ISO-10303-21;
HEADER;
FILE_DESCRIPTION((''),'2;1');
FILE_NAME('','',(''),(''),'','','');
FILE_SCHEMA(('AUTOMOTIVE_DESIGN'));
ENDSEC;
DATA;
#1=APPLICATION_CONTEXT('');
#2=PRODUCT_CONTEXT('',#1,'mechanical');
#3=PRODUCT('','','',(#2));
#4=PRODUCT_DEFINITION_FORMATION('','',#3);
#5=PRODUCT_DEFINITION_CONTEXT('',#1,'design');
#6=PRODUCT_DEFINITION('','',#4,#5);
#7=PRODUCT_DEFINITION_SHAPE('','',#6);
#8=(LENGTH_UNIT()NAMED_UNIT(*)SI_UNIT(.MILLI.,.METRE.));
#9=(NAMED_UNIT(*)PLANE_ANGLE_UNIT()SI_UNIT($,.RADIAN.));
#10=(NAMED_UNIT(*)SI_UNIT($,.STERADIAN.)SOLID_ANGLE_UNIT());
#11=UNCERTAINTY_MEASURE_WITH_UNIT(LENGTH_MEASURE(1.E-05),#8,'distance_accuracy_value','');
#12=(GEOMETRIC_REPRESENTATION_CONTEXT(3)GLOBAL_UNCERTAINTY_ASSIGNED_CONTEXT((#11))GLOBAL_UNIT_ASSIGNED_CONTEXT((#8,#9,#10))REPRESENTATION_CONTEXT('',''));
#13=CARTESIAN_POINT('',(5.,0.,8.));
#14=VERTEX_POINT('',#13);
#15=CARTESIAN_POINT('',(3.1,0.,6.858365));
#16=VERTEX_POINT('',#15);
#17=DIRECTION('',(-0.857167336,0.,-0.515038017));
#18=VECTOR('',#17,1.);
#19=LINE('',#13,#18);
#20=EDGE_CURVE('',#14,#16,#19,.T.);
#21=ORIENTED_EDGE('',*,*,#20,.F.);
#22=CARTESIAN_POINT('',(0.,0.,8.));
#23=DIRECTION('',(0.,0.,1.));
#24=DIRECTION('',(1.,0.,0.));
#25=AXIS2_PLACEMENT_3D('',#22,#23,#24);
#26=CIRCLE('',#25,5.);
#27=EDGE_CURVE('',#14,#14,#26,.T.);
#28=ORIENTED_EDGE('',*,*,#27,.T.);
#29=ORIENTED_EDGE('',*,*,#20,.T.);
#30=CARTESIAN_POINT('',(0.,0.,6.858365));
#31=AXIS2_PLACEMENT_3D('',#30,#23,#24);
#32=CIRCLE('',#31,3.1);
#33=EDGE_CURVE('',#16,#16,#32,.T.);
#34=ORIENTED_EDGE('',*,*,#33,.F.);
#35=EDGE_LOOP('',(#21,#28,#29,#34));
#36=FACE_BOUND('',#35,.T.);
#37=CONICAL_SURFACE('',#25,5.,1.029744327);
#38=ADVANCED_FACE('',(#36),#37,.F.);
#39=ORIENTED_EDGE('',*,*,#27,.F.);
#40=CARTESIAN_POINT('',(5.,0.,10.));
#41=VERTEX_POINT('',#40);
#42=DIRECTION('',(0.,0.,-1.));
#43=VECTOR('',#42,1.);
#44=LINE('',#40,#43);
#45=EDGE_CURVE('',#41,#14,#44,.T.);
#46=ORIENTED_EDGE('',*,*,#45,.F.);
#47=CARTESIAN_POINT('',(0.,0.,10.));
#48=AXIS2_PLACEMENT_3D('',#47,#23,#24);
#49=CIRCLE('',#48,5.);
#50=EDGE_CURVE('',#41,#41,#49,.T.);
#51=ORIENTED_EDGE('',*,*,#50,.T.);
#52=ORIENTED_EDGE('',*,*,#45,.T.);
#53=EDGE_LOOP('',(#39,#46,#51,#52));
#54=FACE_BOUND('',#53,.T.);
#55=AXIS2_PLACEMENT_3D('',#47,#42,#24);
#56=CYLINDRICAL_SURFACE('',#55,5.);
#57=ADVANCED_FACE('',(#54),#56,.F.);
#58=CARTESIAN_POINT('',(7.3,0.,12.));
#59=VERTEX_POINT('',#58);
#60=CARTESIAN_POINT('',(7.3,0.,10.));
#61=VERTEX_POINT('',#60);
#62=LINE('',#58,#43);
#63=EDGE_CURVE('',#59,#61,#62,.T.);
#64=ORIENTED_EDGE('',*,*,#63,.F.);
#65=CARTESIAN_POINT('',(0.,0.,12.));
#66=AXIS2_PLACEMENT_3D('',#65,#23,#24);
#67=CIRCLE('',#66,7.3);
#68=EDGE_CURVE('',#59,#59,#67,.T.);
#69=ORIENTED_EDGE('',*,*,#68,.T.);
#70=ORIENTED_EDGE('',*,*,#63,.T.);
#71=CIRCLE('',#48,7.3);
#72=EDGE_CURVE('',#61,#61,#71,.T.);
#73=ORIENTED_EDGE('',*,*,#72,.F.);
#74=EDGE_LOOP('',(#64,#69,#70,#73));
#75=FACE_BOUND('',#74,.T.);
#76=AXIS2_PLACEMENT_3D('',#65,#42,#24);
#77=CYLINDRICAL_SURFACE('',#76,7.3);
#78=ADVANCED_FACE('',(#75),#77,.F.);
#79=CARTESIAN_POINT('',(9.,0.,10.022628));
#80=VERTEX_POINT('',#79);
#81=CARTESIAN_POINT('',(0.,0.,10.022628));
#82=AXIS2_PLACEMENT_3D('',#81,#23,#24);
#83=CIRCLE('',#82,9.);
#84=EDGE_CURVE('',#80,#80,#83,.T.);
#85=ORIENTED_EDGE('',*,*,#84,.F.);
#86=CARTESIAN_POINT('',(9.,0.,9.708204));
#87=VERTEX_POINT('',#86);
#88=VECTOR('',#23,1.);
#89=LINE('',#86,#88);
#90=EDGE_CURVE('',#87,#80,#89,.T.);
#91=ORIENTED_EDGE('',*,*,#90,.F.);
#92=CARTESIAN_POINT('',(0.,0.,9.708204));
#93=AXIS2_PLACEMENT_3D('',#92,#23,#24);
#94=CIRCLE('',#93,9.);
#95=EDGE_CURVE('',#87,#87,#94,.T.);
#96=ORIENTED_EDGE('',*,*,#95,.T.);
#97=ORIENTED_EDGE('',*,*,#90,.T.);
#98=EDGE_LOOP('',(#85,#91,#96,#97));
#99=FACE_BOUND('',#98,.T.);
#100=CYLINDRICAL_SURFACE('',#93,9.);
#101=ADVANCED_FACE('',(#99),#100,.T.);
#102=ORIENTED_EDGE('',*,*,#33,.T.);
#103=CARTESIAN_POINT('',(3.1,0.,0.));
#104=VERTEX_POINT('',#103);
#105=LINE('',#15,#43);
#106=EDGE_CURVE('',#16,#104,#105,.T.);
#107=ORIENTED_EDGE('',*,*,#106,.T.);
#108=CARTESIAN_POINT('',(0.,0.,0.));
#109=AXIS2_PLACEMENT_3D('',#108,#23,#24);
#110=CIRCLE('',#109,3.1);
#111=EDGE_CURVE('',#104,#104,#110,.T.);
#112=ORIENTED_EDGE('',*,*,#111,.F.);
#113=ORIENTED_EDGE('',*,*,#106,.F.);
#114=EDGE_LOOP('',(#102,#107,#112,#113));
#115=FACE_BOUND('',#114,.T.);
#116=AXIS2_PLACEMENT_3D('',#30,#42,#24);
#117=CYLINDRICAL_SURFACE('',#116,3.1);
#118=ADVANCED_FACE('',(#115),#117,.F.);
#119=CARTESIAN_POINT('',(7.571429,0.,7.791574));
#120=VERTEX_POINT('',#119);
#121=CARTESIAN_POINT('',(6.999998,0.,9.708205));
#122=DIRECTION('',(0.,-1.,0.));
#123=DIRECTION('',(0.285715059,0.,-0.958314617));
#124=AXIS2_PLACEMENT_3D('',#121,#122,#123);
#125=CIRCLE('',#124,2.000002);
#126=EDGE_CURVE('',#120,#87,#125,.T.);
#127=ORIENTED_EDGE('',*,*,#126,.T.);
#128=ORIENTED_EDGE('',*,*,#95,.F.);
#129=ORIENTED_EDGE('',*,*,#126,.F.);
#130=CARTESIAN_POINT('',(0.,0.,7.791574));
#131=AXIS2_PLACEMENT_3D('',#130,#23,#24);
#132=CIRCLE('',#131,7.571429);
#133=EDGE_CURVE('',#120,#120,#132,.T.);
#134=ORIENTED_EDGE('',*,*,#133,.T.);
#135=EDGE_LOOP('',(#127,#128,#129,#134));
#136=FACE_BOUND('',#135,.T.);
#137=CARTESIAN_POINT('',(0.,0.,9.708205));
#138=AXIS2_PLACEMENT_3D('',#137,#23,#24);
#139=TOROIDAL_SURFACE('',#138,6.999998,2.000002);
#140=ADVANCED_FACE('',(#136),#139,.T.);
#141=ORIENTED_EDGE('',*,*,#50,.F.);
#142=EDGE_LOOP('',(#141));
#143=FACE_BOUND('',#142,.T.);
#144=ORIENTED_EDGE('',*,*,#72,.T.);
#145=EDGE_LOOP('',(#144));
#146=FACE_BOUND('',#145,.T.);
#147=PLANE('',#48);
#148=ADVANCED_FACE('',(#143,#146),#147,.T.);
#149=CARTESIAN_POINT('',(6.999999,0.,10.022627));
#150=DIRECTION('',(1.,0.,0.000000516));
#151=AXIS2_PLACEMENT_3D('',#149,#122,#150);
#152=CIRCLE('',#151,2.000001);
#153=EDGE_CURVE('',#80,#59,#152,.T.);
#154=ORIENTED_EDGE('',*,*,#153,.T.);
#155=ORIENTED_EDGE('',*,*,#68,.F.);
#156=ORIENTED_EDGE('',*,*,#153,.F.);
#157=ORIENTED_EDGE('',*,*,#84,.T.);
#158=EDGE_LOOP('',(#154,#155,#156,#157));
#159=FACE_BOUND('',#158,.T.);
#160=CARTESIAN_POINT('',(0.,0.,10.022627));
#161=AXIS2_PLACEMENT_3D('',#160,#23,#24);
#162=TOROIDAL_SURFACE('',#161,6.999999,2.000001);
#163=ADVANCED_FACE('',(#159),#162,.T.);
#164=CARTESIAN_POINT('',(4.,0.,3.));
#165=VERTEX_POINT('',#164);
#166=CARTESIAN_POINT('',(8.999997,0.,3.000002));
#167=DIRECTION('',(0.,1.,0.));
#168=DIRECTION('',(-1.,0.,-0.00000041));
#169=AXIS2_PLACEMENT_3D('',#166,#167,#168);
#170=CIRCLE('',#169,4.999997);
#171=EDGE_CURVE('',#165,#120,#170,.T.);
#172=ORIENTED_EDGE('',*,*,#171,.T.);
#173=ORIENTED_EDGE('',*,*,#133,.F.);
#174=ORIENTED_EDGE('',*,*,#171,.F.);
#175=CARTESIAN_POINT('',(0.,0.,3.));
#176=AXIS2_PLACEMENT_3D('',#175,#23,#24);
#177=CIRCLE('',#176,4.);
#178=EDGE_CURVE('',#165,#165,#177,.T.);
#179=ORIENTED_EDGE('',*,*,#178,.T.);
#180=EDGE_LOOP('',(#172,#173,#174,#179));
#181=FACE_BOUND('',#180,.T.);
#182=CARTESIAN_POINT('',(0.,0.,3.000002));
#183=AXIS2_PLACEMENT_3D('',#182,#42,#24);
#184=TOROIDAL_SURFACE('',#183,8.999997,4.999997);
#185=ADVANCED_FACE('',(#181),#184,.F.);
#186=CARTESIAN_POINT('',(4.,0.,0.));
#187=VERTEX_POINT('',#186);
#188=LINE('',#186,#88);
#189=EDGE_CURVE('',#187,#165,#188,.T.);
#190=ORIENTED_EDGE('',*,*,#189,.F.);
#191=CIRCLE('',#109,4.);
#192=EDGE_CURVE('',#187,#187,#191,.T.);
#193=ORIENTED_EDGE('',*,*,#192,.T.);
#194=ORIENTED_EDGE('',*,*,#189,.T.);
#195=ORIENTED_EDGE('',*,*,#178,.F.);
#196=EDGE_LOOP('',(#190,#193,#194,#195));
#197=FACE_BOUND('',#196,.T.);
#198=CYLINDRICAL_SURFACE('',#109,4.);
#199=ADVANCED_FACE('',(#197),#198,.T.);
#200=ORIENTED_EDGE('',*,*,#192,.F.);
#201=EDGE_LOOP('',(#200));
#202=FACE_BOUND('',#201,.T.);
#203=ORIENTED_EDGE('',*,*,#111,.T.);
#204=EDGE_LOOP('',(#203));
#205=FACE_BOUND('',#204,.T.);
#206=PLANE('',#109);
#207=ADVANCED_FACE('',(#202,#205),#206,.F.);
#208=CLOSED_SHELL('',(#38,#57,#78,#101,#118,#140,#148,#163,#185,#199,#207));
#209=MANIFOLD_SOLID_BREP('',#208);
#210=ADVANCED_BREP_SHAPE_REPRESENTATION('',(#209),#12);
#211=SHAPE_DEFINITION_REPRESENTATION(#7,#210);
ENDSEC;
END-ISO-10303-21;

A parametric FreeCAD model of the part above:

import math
import FreeCAD as App
import Part
import Sketcher

V = App.Vector
Q = App.Units.Quantity

doc = App.newDocument("Part")
body = doc.addObject("PartDesign::Body", "Body")

sketch1 = doc.addObject("Sketcher::SketchObject", "Sketch")
body.addObject(sketch1)
sketch1.AttachmentSupport = (doc.XZ_Plane, [""])
sketch1.MapMode = "FlatFace"
sketch1.addGeometry(Part.LineSegment(V(9, 9.708204, 0), V(9, 10.022628, 0)), False)
sketch1.addGeometry(Part.ArcOfCircle(Part.Circle(V(6.999999, 10.022627, 0), V(0, 0, 1), 2.000001), math.radians(0.00003), math.radians(81.373044)), False)
sketch1.addGeometry(Part.LineSegment(V(7.3, 12, 0), V(7.3, 10, 0)), False)
sketch1.addGeometry(Part.LineSegment(V(7.3, 10, 0), V(5, 10, 0)), False)
sketch1.addGeometry(Part.LineSegment(V(5, 10, 0), V(5, 8, 0)), False)
sketch1.addGeometry(Part.LineSegment(V(5, 8, 0), V(3.1, 6.858365, 0)), False)
sketch1.addGeometry(Part.LineSegment(V(3.1, 6.858365, 0), V(3.1, 0, 0)), False)
sketch1.addGeometry(Part.LineSegment(V(3.1, 0, 0), V(4, 0, 0)), False)
sketch1.addGeometry(Part.LineSegment(V(4, 0, 0), V(4, 3, 0)), False)
sketch1.addGeometry(Part.ArcOfCircle(Part.Circle(V(8.999997, 3.000002, 0), V(0, 0, 1), 4.999997), math.radians(106.601517), math.radians(180.000023)), False)
sketch1.addGeometry(Part.ArcOfCircle(Part.Circle(V(6.999998, 9.708205, 0), V(0, 0, 1), 2.000002), math.radians(-73.398404), math.radians(-0.000021)), False)
sketch1.addConstraint(Sketcher.Constraint("Tangent", 0, 2, 1, 1))
sketch1.addConstraint(Sketcher.Constraint("Coincident", 1, 2, 2, 1))
sketch1.addConstraint(Sketcher.Constraint("Coincident", 2, 2, 3, 1))
sketch1.addConstraint(Sketcher.Constraint("Coincident", 3, 2, 4, 1))
sketch1.addConstraint(Sketcher.Constraint("Coincident", 4, 2, 5, 1))
sketch1.addConstraint(Sketcher.Constraint("Coincident", 5, 2, 6, 1))
sketch1.addConstraint(Sketcher.Constraint("Coincident", 6, 2, 7, 1))
sketch1.addConstraint(Sketcher.Constraint("Coincident", 7, 2, 8, 1))
sketch1.addConstraint(Sketcher.Constraint("Tangent", 8, 2, 9, 2))
sketch1.addConstraint(Sketcher.Constraint("Tangent", 9, 1, 10, 1))
sketch1.addConstraint(Sketcher.Constraint("Tangent", 10, 2, 0, 1))
sketch1.addConstraint(Sketcher.Constraint("Vertical", 0))
sketch1.addConstraint(Sketcher.Constraint("Vertical", 2))
sketch1.addConstraint(Sketcher.Constraint("Horizontal", 3))
sketch1.addConstraint(Sketcher.Constraint("Vertical", 4))
sketch1.addConstraint(Sketcher.Constraint("Vertical", 6))
sketch1.addConstraint(Sketcher.Constraint("Horizontal", 7))
sketch1.addConstraint(Sketcher.Constraint("Vertical", 8))
sketch1.addConstraint(Sketcher.Constraint("Equal", 1, 10))
sketch1.addConstraint(Sketcher.Constraint("PointOnObject", 6, 2, -1))
sketch1.addConstraint(Sketcher.Constraint("Equal", 2, 4))
sketch1.addConstraint(Sketcher.Constraint("Radius", 1, 2.000001))
sketch1.addConstraint(Sketcher.Constraint("DistanceY", 2, 2, 2, 1, 2.0))
sketch1.addConstraint(Sketcher.Constraint("DistanceY", 8, 1, 8, 2, 3.0))
sketch1.addConstraint(Sketcher.Constraint("Angle", 5, Q("-149.000004 deg")))
sketch1.addConstraint(Sketcher.Constraint("DistanceX", 3, 2, 3, 1, 2.3))
sketch1.addConstraint(Sketcher.Constraint("DistanceX", 7, 1, 7, 2, 0.9))
sketch1.addConstraint(Sketcher.Constraint("DistanceX", -1, 1, 1, 3, 6.999999))
sketch1.addConstraint(Sketcher.Constraint("DistanceY", -1, 1, 1, 2, 12.0))
sketch1.addConstraint(Sketcher.Constraint("DistanceX", -1, 1, 3, 2, 5.0))
sketch1.addConstraint(Sketcher.Constraint("DistanceX", -1, 1, 7, 2, 4.0))
sketch1.addConstraint(Sketcher.Constraint("DistanceX", 10, 3, 9, 3, 1.999998))
revolution = doc.addObject("PartDesign::Revolution", "Revolution")
body.addObject(revolution)
revolution.Profile = sketch1
revolution.ReferenceAxis = (sketch1, ["V_Axis"])
revolution.Angle = 360

doc.recompute()
